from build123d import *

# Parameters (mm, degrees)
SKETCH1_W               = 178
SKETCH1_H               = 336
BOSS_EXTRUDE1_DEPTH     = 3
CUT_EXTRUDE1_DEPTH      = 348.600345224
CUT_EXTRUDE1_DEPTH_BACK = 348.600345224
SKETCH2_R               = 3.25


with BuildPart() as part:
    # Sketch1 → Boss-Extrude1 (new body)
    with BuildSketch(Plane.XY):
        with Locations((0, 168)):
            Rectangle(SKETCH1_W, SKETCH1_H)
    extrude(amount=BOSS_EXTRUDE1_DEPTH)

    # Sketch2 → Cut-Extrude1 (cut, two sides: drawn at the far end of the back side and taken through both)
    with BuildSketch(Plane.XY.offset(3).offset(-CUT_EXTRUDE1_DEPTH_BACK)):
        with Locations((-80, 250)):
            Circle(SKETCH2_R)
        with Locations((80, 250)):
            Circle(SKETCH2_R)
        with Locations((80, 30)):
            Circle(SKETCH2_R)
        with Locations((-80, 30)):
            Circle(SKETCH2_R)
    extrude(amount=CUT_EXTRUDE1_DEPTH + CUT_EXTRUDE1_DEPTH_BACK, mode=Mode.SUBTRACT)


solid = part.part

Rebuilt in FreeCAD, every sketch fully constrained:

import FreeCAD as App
import Part
import Sketcher

doc = App.newDocument("Part")
body = doc.addObject("PartDesign::Body", "Body")

# Sketch on XY plane
sketch1 = body.newObject("Sketcher::SketchObject", "Sketch")
sketch1.AttachmentSupport = (doc.getObject("XY_Plane"), [""])
sketch1.MapMode = "FlatFace"
sketch1.addGeometry(Part.LineSegment(App.Vector(-89, 336, 0), App.Vector(-89, 0, 0)), False)
sketch1.addGeometry(Part.LineSegment(App.Vector(-89, 0, 0), App.Vector(89, 0, 0)), False)
sketch1.addGeometry(Part.LineSegment(App.Vector(89, 0, 0), App.Vector(89, 336, 0)), False)
sketch1.addGeometry(Part.LineSegment(App.Vector(89, 336, 0), App.Vector(-89, 336, 0)), False)
sketch1.addConstraint(Sketcher.Constraint("Coincident", 0, 2, 1, 1))
sketch1.addConstraint(Sketcher.Constraint("Coincident", 1, 2, 2, 1))
sketch1.addConstraint(Sketcher.Constraint("Coincident", 2, 2, 3, 1))
sketch1.addConstraint(Sketcher.Constraint("Coincident", 3, 2, 0, 1))
sketch1.addConstraint(Sketcher.Constraint("Vertical", 0))
sketch1.addConstraint(Sketcher.Constraint("Horizontal", 1))
sketch1.addConstraint(Sketcher.Constraint("Vertical", 2))
sketch1.addConstraint(Sketcher.Constraint("Horizontal", 3))
sketch1.addConstraint(Sketcher.Constraint("Symmetric", 0, 2, 1, 2, -1, 1))
sketch1.addConstraint(Sketcher.Constraint("DistanceX", 1, 1, 1, 2, 178.0))
sketch1.addConstraint(Sketcher.Constraint("DistanceY", 0, 2, 0, 1, 336.0))
pad1 = body.newObject("PartDesign::Pad", "Pad")
pad1.Profile = sketch1
pad1.Length = 3

# Sketch on XY plane
sketch2 = body.newObject("Sketcher::SketchObject", "Sketch001")
sketch2.AttachmentSupport = (doc.getObject("XY_Plane"), [""])
sketch2.MapMode = "FlatFace"
sketch2.AttachmentOffset = App.Placement(App.Vector(0, 0, 3), App.Rotation())
sketch2.addGeometry(Part.Circle(App.Vector(-80, 250, 0), App.Vector(0, 0, 1), 3.25), False)
sketch2.addGeometry(Part.Circle(App.Vector(80, 250, 0), App.Vector(0, 0, 1), 3.25), False)
sketch2.addGeometry(Part.Circle(App.Vector(80, 30, 0), App.Vector(0, 0, 1), 3.25), False)
sketch2.addGeometry(Part.Circle(App.Vector(-80, 30, 0), App.Vector(0, 0, 1), 3.25), False)
sketch2.addConstraint(Sketcher.Constraint("Equal", 0, 1))
sketch2.addConstraint(Sketcher.Constraint("Equal", 1, 2))
sketch2.addConstraint(Sketcher.Constraint("Equal", 2, 3))
sketch2.addConstraint(Sketcher.Constraint("Symmetric", 0, 3, 1, 3, -2))
sketch2.addConstraint(Sketcher.Constraint("Symmetric", 2, 3, 3, 3, -2))
sketch2.addConstraint(Sketcher.Constraint("Vertical", 1, 3, 2, 3))
sketch2.addConstraint(Sketcher.Constraint("Diameter", 0, 6.5))
sketch2.addConstraint(Sketcher.Constraint("DistanceX", 0, 3, -1, 1, 80.0))
sketch2.addConstraint(Sketcher.Constraint("DistanceY", -1, 1, 0, 3, 250.0))
sketch2.addConstraint(Sketcher.Constraint("DistanceY", -1, 1, 2, 3, 30.0))
pocket1 = body.newObject("PartDesign::Pocket", "Pocket")
pocket1.Profile = sketch2
pocket1.Type = "ThroughAll"
pocket1.Midplane = True

doc.recompute()
